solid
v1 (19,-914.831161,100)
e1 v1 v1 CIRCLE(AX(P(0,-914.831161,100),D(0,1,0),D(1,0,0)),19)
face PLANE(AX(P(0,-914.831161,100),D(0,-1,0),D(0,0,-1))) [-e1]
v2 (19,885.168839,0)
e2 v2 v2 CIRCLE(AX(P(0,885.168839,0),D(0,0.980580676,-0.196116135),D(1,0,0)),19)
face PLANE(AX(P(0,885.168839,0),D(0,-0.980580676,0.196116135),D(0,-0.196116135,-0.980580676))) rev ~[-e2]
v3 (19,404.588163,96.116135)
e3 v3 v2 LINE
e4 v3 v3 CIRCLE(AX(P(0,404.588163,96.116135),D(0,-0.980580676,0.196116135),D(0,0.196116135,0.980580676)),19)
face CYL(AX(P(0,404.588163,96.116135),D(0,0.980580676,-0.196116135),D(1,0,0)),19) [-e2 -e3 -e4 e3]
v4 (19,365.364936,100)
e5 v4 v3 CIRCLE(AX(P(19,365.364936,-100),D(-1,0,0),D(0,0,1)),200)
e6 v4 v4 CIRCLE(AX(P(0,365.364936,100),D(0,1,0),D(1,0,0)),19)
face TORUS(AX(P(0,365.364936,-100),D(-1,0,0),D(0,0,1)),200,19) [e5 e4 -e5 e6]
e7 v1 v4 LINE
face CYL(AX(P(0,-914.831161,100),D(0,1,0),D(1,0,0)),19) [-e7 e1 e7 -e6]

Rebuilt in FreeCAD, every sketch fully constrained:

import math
import FreeCAD as App
import Part
import Sketcher
from FreeCAD import Vector

doc = App.newDocument("Part")
body = doc.addObject("PartDesign::Body", "Body")

# Sketch on XZ plane
sketch1 = body.newObject("Sketcher::SketchObject", "Sketch")
sketch1.AttachmentSupport = (doc.getObject("XZ_Plane"), [""])
sketch1.MapMode = "FlatFace"
sketch1.addGeometry(Part.Circle(Vector(0, 100, 0), Vector(0, 0, 1), 19), False)
sketch1.addConstraint(Sketcher.Constraint("PointOnObject", 0, 3, -2))
sketch1.addConstraint(Sketcher.Constraint("Diameter", 0, 38.0))
sketch1.addConstraint(Sketcher.Constraint("DistanceY", -1, 1, 0, 3, 100.0))

# Sketch on YZ plane
sketch2 = body.newObject("Sketcher::SketchObject", "Sketch001")
sketch2.AttachmentSupport = (doc.getObject("YZ_Plane"), [""])
sketch2.MapMode = "FlatFace"
sketch2.addGeometry(Part.LineSegment(Vector(-915, 100, 0), Vector(365, 100, 0)), False)
sketch2.addGeometry(Part.ArcOfCircle(Part.Circle(Vector(365, -100, 0), Vector(0, 0, 1), 200), math.radians(78.69), math.radians(90)), False)
sketch2.addGeometry(Part.LineSegment(Vector(405, 96, 0), Vector(885, 0, 0)), False)
sketch2.addConstraint(Sketcher.Constraint("Tangent", 0, 2, 1, 2))
sketch2.addConstraint(Sketcher.Constraint("Tangent", 1, 1, 2, 1))
sketch2.addConstraint(Sketcher.Constraint("Horizontal", 0))
sketch2.addConstraint(Sketcher.Constraint("PointOnObject", 2, 2, -1))
sketch2.addConstraint(Sketcher.Constraint("Radius", 1, 200.0))
sketch2.addConstraint(Sketcher.Constraint("DistanceY", 1, 3, -1, 1, 100.0))
sketch2.addConstraint(Sketcher.Constraint("DistanceX", 0, 1, 2, 2, 1800.0))
sketch2.addConstraint(Sketcher.Constraint("Distance", 2, 490.098049))
sketch2.addConstraint(Sketcher.Constraint("DistanceX", 0, 1, -1, 1, 914.831161))
doc.recompute()

additivepipe = body.newObject("PartDesign::AdditivePipe", "AdditivePipe")
additivepipe.Profile = sketch1
additivepipe.Spine = (sketch2, ["Edge1", "Edge2", "Edge3"])

doc.recompute()
